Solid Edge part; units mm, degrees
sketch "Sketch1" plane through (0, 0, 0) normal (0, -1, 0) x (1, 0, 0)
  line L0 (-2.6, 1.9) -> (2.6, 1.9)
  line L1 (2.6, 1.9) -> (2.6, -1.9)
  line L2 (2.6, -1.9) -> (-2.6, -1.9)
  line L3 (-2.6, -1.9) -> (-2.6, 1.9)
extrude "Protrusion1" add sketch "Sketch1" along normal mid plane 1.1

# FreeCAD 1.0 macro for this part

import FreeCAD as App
import Part
import Sketcher
Q = App.Units.Quantity

doc = App.newDocument("Part")
params = doc.addObject("Spreadsheet::Sheet", "Params")
for row, (alias, value) in enumerate([
    ("sketch1_width", "5.2 mm"),
    ("sketch1_height", "3.8 mm"),
    ("pad1_length", "1.1 mm"),
], start=1):
    params.set(f"A{row}", alias)
    params.set(f"B{row}", "=" + value)
    params.setAlias(f"B{row}", alias)

body = doc.addObject("PartDesign::Body", "Body")

sketch1 = body.newObject("Sketcher::SketchObject", "Sketch")
sketch1.AttachmentSupport = (doc.getObject("XZ_Plane"), [""])
sketch1.MapMode = "FlatFace"
sketch1.addGeometry([
    Part.LineSegment(App.Vector(2.6, 1.9, 0), App.Vector(-2.6, 1.9, 0)),
    Part.LineSegment(App.Vector(-2.6, 1.9, 0), App.Vector(-2.6, -1.9, 0)),
    Part.LineSegment(App.Vector(-2.6, -1.9, 0), App.Vector(2.6, -1.9, 0)),
    Part.LineSegment(App.Vector(2.6, -1.9, 0), App.Vector(2.6, 1.9, 0)),
], False)
sketch1.addConstraint([
    Sketcher.Constraint("Coincident", 0, 2, 1, 1),
    Sketcher.Constraint("Coincident", 1, 2, 2, 1),
    Sketcher.Constraint("Coincident", 2, 2, 3, 1),
    Sketcher.Constraint("Coincident", 3, 2, 0, 1),
    Sketcher.Constraint("Horizontal", 0),
    Sketcher.Constraint("Vertical", 1),
    Sketcher.Constraint("Horizontal", 2),
    Sketcher.Constraint("Vertical", 3),
    Sketcher.Constraint("Symmetric", 0, 2, 2, 2, -1, 1),
    Sketcher.Constraint("DistanceX", 0, 2, 0, 1, Q("5.2 mm")),
    Sketcher.Constraint("DistanceY", 1, 2, 1, 1, Q("3.8 mm")),
])
sketch1.setExpression("Constraints[9]", "Params.sketch1_width")
sketch1.setExpression("Constraints[10]", "Params.sketch1_height")
pad1 = body.newObject("PartDesign::Pad", "Pad")
pad1.Profile = sketch1
pad1.setExpression("Length", "Params.pad1_length")
pad1.Midplane = True

doc.recompute()
